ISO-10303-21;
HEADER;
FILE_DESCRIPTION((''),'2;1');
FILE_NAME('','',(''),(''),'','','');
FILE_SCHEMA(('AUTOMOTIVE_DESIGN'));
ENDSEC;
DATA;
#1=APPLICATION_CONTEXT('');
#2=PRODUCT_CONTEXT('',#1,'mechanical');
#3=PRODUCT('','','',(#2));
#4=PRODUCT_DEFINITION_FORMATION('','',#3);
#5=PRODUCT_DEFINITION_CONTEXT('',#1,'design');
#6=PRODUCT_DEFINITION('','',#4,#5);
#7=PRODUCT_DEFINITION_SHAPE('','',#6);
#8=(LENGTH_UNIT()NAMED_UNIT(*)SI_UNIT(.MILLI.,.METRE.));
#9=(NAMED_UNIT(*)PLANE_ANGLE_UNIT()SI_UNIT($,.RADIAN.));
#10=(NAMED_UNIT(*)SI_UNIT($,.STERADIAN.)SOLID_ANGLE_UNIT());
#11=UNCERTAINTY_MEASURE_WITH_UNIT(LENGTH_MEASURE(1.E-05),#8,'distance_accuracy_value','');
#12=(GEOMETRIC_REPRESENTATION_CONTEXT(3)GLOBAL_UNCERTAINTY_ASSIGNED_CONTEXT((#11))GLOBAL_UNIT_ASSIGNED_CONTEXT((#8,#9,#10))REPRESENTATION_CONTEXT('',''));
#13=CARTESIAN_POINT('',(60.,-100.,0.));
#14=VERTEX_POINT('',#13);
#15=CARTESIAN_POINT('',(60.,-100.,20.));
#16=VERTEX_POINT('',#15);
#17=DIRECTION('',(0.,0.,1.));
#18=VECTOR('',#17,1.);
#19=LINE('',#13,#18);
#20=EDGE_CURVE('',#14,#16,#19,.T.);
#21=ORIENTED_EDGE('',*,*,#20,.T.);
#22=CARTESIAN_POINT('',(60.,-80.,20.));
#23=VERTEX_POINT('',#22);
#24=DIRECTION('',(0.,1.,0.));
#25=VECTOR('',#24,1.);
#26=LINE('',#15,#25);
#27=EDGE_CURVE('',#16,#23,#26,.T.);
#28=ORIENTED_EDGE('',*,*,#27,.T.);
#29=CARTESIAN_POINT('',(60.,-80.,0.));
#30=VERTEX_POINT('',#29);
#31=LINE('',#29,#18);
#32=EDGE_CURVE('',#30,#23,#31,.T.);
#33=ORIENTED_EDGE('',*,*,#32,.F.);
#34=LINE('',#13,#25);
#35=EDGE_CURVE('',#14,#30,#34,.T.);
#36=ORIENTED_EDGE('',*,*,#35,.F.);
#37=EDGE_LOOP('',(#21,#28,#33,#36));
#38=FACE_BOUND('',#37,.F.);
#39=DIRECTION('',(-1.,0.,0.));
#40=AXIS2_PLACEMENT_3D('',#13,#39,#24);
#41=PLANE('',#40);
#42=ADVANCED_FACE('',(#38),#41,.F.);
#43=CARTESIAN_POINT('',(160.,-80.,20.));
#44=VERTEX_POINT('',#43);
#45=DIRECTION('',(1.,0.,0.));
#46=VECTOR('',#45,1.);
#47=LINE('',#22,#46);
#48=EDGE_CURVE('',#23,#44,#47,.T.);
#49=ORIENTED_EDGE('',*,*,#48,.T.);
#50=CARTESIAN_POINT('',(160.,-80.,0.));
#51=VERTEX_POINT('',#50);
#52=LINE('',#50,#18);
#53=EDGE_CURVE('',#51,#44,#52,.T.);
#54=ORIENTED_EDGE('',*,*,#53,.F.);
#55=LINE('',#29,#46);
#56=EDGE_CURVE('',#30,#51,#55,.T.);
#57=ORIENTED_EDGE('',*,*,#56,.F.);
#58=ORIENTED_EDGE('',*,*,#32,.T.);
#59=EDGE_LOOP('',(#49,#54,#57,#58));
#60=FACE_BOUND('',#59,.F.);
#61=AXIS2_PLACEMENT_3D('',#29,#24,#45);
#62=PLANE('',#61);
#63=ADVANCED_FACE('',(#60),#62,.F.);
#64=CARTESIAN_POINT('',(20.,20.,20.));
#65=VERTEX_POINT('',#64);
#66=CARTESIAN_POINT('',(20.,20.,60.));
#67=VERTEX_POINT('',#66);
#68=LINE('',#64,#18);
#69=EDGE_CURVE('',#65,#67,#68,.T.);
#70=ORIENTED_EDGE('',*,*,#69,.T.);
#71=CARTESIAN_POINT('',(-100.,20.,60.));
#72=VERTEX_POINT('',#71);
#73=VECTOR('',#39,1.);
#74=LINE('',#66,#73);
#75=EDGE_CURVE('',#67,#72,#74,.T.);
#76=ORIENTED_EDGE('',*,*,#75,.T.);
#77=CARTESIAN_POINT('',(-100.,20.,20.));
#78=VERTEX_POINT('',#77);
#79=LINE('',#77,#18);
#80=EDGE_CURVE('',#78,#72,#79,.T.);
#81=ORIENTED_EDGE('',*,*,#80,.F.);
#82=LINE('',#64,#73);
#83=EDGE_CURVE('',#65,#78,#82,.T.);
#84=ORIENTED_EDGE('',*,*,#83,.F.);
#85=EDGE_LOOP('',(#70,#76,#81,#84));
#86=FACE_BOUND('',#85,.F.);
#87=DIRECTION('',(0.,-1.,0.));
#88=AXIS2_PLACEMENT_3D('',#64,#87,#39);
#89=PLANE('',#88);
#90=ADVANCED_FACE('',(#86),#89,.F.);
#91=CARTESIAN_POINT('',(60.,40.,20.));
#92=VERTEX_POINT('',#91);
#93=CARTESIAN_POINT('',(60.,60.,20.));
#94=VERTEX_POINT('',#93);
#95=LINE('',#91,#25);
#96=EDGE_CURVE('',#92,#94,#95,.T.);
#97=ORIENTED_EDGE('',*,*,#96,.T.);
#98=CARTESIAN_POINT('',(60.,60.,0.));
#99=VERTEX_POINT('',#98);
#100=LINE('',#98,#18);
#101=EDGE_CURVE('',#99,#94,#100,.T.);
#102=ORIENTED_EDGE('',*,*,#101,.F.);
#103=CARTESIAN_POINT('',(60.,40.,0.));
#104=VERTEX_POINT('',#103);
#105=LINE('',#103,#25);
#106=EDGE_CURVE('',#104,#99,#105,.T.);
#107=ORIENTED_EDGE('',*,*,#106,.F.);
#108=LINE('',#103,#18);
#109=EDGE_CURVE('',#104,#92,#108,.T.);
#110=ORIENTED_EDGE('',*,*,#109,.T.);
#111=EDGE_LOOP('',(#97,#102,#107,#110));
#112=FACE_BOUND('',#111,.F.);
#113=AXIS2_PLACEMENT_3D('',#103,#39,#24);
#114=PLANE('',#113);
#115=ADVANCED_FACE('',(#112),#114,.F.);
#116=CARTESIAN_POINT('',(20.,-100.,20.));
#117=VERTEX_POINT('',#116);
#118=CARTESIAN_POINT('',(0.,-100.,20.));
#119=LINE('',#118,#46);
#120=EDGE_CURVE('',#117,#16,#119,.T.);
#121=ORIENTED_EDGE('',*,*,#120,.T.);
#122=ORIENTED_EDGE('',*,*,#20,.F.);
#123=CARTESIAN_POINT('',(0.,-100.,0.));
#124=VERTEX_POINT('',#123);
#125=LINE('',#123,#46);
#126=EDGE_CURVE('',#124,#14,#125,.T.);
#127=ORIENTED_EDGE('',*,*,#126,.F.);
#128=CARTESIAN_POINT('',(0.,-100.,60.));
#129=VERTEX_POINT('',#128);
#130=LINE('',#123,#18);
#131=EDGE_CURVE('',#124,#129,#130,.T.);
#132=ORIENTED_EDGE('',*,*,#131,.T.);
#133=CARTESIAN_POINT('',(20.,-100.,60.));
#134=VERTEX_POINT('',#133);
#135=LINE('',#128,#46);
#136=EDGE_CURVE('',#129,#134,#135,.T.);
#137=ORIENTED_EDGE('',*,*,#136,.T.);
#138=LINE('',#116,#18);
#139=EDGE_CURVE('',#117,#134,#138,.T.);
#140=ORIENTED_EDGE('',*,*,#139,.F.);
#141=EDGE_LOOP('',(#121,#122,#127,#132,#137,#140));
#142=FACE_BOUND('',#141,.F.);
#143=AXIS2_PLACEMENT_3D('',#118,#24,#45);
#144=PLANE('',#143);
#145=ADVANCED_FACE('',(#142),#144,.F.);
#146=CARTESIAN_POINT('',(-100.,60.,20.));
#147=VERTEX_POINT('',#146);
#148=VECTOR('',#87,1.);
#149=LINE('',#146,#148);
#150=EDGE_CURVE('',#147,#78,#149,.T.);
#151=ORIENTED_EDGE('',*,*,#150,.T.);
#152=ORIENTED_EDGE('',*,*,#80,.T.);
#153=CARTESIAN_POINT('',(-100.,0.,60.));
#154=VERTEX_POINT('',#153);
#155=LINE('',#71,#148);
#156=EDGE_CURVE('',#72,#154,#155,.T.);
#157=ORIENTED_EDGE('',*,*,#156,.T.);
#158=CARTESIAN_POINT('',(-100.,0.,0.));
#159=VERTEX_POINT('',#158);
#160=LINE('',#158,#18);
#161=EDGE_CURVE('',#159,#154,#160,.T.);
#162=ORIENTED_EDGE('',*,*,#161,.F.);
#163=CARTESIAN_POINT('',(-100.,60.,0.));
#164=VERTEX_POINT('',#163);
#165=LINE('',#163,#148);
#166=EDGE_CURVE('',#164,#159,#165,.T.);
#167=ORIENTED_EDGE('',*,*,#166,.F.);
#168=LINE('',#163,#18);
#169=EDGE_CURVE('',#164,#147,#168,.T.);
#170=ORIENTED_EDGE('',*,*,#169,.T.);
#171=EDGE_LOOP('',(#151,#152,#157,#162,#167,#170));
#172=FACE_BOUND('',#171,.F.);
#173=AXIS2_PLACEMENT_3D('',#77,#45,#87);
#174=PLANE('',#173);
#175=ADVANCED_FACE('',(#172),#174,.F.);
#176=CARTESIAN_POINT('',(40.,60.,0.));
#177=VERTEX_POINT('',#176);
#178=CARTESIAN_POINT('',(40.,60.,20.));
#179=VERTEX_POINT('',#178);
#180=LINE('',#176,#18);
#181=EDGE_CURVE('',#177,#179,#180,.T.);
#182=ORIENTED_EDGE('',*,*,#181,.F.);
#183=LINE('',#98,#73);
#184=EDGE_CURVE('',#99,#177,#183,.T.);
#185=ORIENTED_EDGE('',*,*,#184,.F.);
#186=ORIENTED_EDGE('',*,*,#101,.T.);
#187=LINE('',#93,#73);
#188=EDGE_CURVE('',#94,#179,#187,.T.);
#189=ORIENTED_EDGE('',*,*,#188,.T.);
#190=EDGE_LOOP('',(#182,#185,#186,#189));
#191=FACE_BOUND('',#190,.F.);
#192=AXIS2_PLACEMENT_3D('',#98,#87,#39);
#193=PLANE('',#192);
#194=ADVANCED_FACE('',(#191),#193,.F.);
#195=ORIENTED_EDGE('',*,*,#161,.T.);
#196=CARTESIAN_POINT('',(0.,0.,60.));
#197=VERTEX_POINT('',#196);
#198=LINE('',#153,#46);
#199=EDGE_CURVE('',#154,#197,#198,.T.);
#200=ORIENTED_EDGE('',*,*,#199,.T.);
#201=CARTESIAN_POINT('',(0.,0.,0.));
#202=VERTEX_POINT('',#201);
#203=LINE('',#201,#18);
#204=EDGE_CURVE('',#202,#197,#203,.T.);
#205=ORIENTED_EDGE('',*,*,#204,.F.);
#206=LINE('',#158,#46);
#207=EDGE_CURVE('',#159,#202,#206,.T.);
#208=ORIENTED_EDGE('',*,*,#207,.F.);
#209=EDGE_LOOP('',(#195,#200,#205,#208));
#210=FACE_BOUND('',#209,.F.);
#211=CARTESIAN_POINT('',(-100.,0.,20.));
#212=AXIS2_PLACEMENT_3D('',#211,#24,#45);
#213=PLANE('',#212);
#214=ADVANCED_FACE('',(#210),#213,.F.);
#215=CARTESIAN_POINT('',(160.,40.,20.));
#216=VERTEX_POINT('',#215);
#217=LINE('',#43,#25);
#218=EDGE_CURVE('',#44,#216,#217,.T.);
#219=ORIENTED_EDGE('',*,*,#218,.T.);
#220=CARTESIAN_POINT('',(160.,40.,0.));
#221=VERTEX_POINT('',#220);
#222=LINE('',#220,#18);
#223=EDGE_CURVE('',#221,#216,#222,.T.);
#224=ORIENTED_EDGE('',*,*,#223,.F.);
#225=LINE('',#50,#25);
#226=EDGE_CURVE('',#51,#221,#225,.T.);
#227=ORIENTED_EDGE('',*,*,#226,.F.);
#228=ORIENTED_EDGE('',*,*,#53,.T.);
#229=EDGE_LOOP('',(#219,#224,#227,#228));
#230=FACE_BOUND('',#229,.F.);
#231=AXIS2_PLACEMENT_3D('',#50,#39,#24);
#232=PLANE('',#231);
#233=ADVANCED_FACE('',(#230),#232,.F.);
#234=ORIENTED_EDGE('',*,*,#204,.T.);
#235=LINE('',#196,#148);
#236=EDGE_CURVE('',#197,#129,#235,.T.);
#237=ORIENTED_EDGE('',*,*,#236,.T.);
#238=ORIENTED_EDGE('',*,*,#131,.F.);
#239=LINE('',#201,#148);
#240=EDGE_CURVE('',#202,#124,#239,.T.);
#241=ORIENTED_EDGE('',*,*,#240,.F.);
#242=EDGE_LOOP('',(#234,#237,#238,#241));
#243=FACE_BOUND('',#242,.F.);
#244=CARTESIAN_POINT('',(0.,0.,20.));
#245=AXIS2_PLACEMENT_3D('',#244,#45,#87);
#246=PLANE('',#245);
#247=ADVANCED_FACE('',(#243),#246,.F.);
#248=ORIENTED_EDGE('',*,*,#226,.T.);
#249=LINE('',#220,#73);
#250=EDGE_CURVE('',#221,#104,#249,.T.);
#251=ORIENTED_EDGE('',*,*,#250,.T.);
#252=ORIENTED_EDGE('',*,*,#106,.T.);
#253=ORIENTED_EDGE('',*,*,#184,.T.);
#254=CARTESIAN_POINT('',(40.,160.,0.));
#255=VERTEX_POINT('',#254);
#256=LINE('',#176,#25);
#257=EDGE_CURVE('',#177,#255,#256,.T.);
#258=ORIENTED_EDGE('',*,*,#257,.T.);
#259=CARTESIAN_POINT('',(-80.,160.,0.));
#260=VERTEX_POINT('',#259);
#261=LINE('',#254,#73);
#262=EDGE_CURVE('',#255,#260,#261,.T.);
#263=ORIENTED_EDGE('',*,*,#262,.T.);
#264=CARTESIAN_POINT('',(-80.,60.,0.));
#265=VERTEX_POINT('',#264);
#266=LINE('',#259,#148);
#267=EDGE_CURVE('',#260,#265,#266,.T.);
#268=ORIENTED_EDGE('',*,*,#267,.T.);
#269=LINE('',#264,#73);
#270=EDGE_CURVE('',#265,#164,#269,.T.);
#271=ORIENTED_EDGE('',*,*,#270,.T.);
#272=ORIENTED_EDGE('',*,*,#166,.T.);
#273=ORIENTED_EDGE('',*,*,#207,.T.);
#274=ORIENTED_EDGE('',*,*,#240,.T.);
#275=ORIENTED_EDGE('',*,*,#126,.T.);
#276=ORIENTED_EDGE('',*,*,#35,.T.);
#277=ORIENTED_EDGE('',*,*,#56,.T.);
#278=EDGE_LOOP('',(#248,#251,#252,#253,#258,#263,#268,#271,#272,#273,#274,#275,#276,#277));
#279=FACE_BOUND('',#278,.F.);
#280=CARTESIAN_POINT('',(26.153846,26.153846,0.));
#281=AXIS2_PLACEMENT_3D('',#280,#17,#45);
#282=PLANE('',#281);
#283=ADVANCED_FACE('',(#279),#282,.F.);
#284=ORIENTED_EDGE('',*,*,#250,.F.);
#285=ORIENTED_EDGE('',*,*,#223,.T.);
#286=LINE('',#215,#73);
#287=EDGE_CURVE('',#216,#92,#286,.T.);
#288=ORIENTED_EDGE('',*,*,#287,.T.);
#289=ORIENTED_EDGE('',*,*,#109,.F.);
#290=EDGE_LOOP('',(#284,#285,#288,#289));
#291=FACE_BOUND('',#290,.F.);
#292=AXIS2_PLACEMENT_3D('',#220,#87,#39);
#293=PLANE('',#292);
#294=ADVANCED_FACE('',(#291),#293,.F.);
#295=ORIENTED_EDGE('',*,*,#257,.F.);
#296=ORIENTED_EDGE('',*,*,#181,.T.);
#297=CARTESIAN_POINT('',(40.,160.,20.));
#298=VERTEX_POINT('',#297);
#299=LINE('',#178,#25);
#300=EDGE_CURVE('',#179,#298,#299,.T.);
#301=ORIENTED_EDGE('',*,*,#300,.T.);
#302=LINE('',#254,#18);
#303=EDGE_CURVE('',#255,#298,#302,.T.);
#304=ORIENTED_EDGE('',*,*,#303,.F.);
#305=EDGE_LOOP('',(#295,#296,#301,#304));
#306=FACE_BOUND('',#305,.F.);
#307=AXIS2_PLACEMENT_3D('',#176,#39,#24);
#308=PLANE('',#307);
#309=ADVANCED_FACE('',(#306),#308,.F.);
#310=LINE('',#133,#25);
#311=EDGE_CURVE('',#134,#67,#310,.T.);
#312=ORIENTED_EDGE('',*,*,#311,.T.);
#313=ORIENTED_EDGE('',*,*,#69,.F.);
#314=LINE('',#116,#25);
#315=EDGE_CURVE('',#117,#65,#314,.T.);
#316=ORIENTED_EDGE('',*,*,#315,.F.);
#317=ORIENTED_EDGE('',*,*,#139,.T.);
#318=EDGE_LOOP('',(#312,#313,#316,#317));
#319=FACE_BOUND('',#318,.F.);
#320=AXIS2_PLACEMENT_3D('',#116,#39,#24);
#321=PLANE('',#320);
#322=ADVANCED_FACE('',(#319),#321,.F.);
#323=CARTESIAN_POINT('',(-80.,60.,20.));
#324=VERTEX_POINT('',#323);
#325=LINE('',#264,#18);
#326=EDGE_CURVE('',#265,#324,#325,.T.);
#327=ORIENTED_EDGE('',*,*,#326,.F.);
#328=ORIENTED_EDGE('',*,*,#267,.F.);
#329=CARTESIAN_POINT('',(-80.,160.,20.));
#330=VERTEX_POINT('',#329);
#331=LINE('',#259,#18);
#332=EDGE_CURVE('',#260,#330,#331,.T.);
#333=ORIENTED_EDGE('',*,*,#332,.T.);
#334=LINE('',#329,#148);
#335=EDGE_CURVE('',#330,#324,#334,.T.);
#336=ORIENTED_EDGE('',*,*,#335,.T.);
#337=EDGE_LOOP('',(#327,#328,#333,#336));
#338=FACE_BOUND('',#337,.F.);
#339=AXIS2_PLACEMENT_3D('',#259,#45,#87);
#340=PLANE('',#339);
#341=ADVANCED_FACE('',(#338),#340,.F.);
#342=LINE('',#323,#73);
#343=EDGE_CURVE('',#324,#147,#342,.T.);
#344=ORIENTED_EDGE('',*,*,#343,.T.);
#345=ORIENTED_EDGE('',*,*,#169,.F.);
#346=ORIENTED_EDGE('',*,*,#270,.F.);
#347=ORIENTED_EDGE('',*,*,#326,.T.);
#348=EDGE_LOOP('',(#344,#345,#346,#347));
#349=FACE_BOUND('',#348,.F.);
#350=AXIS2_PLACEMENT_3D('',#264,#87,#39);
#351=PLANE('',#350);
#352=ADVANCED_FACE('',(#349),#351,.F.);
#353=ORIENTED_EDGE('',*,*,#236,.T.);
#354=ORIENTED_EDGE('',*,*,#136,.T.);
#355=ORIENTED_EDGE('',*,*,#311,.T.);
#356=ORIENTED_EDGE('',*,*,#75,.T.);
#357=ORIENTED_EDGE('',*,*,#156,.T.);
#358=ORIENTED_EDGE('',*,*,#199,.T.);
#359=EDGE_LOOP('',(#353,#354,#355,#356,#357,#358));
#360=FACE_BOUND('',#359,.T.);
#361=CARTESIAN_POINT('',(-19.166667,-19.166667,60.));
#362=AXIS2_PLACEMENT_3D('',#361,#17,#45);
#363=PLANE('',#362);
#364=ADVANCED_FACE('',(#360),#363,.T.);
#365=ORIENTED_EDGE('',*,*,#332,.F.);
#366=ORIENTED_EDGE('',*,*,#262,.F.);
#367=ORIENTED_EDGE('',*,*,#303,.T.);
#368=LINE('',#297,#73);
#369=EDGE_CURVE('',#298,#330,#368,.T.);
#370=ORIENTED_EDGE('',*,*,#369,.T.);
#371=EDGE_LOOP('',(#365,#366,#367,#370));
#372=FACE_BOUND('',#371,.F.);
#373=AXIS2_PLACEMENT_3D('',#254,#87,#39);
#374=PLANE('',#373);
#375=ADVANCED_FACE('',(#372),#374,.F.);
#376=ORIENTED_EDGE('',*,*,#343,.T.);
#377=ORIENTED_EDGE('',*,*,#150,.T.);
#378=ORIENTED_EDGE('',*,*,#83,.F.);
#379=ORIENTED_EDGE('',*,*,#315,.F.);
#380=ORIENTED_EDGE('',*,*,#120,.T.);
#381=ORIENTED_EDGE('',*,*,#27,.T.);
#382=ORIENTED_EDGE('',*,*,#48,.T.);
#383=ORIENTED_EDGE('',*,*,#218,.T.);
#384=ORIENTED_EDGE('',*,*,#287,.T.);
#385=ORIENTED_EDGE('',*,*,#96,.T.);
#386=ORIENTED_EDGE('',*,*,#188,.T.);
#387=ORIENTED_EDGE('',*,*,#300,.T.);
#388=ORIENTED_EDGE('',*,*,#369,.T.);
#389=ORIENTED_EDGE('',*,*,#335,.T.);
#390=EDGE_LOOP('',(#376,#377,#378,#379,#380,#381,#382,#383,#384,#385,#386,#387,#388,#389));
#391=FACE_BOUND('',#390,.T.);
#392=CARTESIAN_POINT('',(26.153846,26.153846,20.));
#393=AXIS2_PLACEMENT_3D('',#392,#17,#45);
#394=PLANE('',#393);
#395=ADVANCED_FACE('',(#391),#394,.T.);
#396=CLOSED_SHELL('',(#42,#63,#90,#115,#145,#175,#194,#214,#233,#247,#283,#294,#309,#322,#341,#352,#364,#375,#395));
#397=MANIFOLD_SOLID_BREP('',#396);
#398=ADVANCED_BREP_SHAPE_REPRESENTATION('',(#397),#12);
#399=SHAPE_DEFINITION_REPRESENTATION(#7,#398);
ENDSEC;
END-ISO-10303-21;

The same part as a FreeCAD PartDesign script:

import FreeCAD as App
import Part
import Sketcher

V = App.Vector
Q = App.Units.Quantity


def add_polygon(sketch, points):
    """Adds a closed chain of lines whose ends are joined by coincident constraints."""
    first, n = sketch.GeometryCount, len(points)
    for a, b in zip(points, points[1:] + points[:1]):
        sketch.addGeometry(Part.LineSegment(App.Vector(*a, 0), App.Vector(*b, 0)), False)
    for i in range(n):
        sketch.addConstraint(Sketcher.Constraint("Coincident", first + i, 2, first + (i + 1) % n, 1))

doc = App.newDocument("Part")
body = doc.addObject("PartDesign::Body", "Body")

# Sketch on XY plane
sketch1 = body.newObject("Sketcher::SketchObject", "Sketch")
sketch1.AttachmentSupport = (doc.getObject("XY_Plane"), [""])
sketch1.MapMode = "FlatFace"
add_polygon(sketch1, [(-100, 0), (0, 0), (0, -100), (60, -100), (60, -80), (160, -80), (160, 40), (60, 40), (60, 60), (40, 60), (40, 160), (-80, 160), (-80, 60), (-100, 60)])  # lines 0-13
sketch1.addConstraint(Sketcher.Constraint("Horizontal", 0))
sketch1.addConstraint(Sketcher.Constraint("Vertical", 1))
sketch1.addConstraint(Sketcher.Constraint("Horizontal", 2))
sketch1.addConstraint(Sketcher.Constraint("Vertical", 3))
sketch1.addConstraint(Sketcher.Constraint("Horizontal", 4))
sketch1.addConstraint(Sketcher.Constraint("Vertical", 5))
sketch1.addConstraint(Sketcher.Constraint("Horizontal", 6))
sketch1.addConstraint(Sketcher.Constraint("Vertical", 7))
sketch1.addConstraint(Sketcher.Constraint("Horizontal", 8))
sketch1.addConstraint(Sketcher.Constraint("Vertical", 9))
sketch1.addConstraint(Sketcher.Constraint("Horizontal", 10))
sketch1.addConstraint(Sketcher.Constraint("Vertical", 11))
sketch1.addConstraint(Sketcher.Constraint("Horizontal", 12))
sketch1.addConstraint(Sketcher.Constraint("Vertical", 13))
sketch1.addConstraint(Sketcher.Constraint("Coincident", 0, 2, -1, 1))
sketch1.addConstraint(Sketcher.Constraint("Horizontal", 8, 2, 11, 2))
sketch1.addConstraint(Sketcher.Constraint("Vertical", 3, 2, 6, 2))
sketch1.addConstraint(Sketcher.Constraint("Equal", 0, 4))
sketch1.addConstraint(Sketcher.Constraint("Equal", 8, 12))
sketch1.addConstraint(Sketcher.Constraint("Equal", 6, 1))
sketch1.addConstraint(Sketcher.Constraint("Equal", 12, 3))
sketch1.addConstraint(Sketcher.Constraint("Equal", 10, 5))
sketch1.addConstraint(Sketcher.Constraint("Equal", 3, 7))
sketch1.addConstraint(Sketcher.Constraint("Equal", 1, 9))
sketch1.addConstraint(Sketcher.Constraint("DistanceX", 0, 1, 0, 2, Q("100 mm")))
sketch1.addConstraint(Sketcher.Constraint("DistanceX", 2, 1, 2, 2, Q("60 mm")))
sketch1.addConstraint(Sketcher.Constraint("DistanceX", 8, 2, 8, 1, Q("20 mm")))
pad1 = body.newObject("PartDesign::Pad", "Pad")
pad1.Profile = sketch1
pad1.Length = 20

# Sketch on XY plane
sketch2 = body.newObject("Sketcher::SketchObject", "Sketch001")
sketch2.AttachmentSupport = (doc.getObject("XY_Plane"), [""])
sketch2.MapMode = "FlatFace"
sketch2.AttachmentOffset = App.Placement(V(0, 0, 20), App.Rotation())
add_polygon(sketch2, [(-100, 20), (-100, 0), (0, 0), (0, -100), (20, -100), (20, 20)])  # lines 0-5
sketch2.addConstraint(Sketcher.Constraint("Vertical", 0))
sketch2.addConstraint(Sketcher.Constraint("Horizontal", 1))
sketch2.addConstraint(Sketcher.Constraint("Vertical", 2))
sketch2.addConstraint(Sketcher.Constraint("Horizontal", 3))
sketch2.addConstraint(Sketcher.Constraint("Vertical", 4))
sketch2.addConstraint(Sketcher.Constraint("Horizontal", 5))
sketch2.addConstraint(Sketcher.Constraint("Coincident", 1, 2, -1, 1))
sketch2.addConstraint(Sketcher.Constraint("Equal", 3, 0))
sketch2.addConstraint(Sketcher.Constraint("Equal", 1, 2))
sketch2.addConstraint(Sketcher.Constraint("DistanceX", 1, 1, 1, 2, Q("100 mm")))
sketch2.addConstraint(Sketcher.Constraint("DistanceX", 3, 1, 3, 2, Q("20 mm")))
pad2 = body.newObject("PartDesign::Pad", "Pad001")
pad2.Profile = sketch2
pad2.Length = 40

doc.recompute()
